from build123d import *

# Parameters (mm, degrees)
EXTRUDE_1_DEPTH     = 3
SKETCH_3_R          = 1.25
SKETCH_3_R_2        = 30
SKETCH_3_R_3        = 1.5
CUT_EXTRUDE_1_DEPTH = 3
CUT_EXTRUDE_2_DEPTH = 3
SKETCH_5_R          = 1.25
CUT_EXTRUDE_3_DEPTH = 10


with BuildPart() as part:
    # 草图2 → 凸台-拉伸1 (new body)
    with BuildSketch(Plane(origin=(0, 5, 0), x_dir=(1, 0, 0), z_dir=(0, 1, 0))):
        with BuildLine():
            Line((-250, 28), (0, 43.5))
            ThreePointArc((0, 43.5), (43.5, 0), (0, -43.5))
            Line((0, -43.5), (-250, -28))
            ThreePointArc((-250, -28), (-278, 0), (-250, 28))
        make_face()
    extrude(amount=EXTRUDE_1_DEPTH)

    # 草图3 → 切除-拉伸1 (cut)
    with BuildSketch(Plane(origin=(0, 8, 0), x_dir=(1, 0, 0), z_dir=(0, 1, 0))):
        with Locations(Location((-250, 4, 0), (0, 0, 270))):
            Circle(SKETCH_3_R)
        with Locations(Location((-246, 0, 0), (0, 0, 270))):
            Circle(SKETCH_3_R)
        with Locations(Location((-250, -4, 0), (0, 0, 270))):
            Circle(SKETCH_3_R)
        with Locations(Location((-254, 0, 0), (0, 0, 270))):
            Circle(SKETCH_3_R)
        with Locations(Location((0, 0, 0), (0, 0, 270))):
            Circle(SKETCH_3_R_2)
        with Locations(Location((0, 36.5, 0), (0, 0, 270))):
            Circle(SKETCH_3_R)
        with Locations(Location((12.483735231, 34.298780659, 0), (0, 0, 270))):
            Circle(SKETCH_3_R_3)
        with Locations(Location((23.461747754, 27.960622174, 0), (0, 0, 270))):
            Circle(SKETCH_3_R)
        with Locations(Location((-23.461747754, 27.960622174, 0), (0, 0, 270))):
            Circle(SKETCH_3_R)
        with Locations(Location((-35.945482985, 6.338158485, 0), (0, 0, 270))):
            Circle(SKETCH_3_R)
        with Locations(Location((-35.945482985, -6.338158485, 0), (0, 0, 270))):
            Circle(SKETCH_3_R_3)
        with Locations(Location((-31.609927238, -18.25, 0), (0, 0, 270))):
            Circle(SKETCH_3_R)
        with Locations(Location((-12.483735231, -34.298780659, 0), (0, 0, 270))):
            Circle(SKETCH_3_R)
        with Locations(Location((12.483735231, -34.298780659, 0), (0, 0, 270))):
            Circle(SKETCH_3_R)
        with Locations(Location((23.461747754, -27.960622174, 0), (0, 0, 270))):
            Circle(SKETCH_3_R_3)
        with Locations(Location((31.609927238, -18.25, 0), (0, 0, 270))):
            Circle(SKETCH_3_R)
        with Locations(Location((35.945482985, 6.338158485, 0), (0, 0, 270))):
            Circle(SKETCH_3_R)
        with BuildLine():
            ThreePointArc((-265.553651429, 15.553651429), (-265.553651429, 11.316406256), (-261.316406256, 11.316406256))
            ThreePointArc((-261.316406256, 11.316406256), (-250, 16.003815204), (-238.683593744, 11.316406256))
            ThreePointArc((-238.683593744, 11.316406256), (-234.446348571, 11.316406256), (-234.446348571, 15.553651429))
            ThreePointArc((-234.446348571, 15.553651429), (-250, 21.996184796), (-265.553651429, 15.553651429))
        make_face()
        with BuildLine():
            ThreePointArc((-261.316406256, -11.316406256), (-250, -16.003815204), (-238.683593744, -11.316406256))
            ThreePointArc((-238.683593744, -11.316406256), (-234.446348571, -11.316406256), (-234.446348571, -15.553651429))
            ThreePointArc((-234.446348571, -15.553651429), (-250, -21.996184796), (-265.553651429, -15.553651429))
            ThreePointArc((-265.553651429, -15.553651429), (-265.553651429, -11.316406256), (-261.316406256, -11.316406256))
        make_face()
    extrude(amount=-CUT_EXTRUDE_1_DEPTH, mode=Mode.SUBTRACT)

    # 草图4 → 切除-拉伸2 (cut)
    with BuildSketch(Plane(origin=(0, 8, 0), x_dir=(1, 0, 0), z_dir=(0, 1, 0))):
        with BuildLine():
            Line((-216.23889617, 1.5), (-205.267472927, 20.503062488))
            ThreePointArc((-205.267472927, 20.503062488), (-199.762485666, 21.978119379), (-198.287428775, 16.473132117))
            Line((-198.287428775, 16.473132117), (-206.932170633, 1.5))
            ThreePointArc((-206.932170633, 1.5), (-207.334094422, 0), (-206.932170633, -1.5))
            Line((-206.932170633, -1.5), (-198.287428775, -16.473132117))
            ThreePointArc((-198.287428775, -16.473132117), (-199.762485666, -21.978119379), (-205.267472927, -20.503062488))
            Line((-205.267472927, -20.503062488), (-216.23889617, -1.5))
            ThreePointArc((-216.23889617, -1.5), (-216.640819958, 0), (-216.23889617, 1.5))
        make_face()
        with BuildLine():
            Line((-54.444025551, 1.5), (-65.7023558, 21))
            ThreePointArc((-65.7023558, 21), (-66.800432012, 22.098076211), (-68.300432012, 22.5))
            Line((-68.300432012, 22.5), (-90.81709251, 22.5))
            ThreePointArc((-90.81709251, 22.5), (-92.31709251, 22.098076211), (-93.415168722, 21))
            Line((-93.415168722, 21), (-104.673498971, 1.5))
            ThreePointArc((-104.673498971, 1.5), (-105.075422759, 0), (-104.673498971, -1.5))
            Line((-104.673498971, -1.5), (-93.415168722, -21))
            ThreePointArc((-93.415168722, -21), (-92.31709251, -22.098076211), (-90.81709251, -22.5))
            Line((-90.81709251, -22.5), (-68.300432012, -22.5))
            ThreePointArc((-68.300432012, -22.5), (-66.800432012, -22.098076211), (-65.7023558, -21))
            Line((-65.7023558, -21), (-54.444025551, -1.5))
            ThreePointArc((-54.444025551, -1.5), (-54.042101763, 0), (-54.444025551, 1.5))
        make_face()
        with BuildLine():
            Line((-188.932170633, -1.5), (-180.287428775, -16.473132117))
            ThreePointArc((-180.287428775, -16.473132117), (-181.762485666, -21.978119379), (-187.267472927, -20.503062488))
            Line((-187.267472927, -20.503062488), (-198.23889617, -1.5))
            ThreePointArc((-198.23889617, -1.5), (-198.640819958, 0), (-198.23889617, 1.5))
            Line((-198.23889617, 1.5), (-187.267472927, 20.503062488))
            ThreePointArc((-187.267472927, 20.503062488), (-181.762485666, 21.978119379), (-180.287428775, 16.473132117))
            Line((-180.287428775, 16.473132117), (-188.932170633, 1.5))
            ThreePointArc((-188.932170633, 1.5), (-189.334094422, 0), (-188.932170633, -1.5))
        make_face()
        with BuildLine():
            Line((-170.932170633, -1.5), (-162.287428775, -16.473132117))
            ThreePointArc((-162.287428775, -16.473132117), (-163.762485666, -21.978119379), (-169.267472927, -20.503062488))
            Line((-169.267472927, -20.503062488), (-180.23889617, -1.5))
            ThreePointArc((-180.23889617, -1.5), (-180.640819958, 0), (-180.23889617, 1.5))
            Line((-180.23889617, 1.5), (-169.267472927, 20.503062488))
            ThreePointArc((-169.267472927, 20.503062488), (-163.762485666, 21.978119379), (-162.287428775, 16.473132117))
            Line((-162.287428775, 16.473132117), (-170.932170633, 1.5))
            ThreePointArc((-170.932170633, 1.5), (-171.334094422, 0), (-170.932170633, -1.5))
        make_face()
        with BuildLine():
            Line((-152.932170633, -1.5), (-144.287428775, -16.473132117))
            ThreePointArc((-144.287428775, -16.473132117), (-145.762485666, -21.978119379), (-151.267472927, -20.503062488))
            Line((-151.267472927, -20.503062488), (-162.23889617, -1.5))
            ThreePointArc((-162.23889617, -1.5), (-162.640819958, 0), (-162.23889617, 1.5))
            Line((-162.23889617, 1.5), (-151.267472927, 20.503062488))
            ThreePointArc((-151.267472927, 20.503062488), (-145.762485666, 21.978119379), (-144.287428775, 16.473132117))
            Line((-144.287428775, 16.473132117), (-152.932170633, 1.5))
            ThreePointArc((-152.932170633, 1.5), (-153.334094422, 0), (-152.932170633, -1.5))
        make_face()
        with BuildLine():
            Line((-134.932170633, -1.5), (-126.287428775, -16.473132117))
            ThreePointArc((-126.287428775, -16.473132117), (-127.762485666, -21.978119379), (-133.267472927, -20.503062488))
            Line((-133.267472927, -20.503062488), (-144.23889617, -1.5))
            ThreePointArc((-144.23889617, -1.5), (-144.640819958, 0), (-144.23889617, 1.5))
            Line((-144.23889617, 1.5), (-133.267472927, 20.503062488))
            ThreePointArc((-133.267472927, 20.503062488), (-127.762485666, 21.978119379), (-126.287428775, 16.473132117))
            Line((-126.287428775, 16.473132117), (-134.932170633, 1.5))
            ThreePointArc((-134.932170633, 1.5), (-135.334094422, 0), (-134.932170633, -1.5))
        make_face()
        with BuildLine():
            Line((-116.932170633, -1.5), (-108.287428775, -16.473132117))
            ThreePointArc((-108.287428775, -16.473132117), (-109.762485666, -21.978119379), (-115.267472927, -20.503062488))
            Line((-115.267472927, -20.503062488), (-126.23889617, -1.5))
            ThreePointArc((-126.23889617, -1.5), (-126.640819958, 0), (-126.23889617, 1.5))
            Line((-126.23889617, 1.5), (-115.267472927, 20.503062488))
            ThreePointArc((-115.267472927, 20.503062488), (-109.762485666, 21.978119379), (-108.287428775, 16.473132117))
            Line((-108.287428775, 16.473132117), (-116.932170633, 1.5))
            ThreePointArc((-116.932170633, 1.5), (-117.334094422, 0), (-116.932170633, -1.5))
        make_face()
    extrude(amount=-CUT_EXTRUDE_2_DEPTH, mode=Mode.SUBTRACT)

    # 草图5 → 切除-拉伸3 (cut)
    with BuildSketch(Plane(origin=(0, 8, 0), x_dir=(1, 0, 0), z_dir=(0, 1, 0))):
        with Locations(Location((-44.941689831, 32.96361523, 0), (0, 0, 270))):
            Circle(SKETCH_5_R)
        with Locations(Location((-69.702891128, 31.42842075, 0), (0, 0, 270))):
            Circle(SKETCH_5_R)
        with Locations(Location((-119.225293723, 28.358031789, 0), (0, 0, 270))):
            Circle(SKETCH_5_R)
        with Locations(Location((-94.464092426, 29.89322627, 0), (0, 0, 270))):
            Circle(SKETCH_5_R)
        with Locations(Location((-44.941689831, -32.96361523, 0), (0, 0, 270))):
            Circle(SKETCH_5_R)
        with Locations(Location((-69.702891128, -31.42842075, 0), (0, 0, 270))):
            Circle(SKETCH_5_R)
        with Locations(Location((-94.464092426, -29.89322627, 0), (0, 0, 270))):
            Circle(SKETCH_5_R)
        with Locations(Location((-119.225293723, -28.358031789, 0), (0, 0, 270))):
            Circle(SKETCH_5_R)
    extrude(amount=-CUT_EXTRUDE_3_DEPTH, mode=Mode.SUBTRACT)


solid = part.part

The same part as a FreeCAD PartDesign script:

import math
import FreeCAD as App
import Part
import Sketcher

V = App.Vector
Q = App.Units.Quantity

doc = App.newDocument("Part")
params = doc.addObject("Spreadsheet::Sheet", "Params")
for row, (alias, value) in enumerate([
    ("sketch1_radius", "28 mm"),
    ("sketch1_radius2", "43.5 mm"),
    ("pad1_length", "3 mm"),
    ("sketch2_diameter", "60 mm"),
    ("sketch2_diameter2", "3 mm"),
    ("sketch2_diameter3", "2.5 mm"),
    ("pocket1_length", "3 mm"),
    ("sketch3_radius", "3 mm"),
    ("pocket2_length", "3 mm"),
    ("sketch4_diameter", "2.5 mm"),
    ("pocket3_length", "10 mm"),
], start=1):
    params.set(f"A{row}", alias)
    params.set(f"B{row}", "=" + value)
    params.setAlias(f"B{row}", alias)

body = doc.addObject("PartDesign::Body", "Body")

sketch1 = body.newObject("Sketcher::SketchObject", "Sketch")
sketch1.AttachmentSupport = (doc.getObject("XZ_Plane"), [""])
sketch1.MapMode = "FlatFace"
sketch1.AttachmentOffset = App.Placement(V(0, 0, -5), App.Rotation())
sketch1.addGeometry([
    Part.LineSegment(V(0, -44, 0), V(-250, -28, 0)),
    Part.ArcOfCircle(Part.Circle(V(-250, 0, 0), V(0, 0, 1), 28), math.radians(90), math.radians(270)),
    Part.LineSegment(V(-250, 28, 0), V(0, 44, 0)),
    Part.ArcOfCircle(Part.Circle(V(0, 0, 0), V(0, 0, 1), 44), math.radians(-90), math.radians(90)),
], False)
sketch1.addConstraint([
    Sketcher.Constraint("Coincident", 0, 2, 1, 2),
    Sketcher.Constraint("Coincident", 1, 1, 2, 1),
    Sketcher.Constraint("Coincident", 2, 2, 3, 2),
    Sketcher.Constraint("Coincident", 3, 1, 0, 1),
    Sketcher.Constraint("Coincident", 3, 3, -1, 1),
    Sketcher.Constraint("Symmetric", 0, 2, 1, 1, -1),
    Sketcher.Constraint("PointOnObject", 2, 2, -2),
    Sketcher.Constraint("PointOnObject", 3, 1, -2),
    Sketcher.Constraint("Vertical", 1, 3, 0, 2),
    Sketcher.Constraint("Radius", 1, 28.0),
    Sketcher.Constraint("Radius", 3, 43.5),
    Sketcher.Constraint("DistanceX", 1, 3, -1, 1, 250.0),
])
sketch1.setExpression("Constraints[9]", "Params.sketch1_radius")
sketch1.setExpression("Constraints[10]", "Params.sketch1_radius2")
pad1 = body.newObject("PartDesign::Pad", "Pad")
pad1.Profile = sketch1
pad1.setExpression("Length", "Params.pad1_length")
pad1.Reversed = True

sketch2 = body.newObject("Sketcher::SketchObject", "Sketch001")
sketch2.AttachmentSupport = (doc.getObject("XZ_Plane"), [""])
sketch2.MapMode = "FlatFace"
sketch2.AttachmentOffset = App.Placement(V(0, 0, -8), App.Rotation())
sketch2.addGeometry([
    Part.Circle(V(-250, -4, 0), V(0, 0, 1), 1.2),
    Part.Circle(V(-246, 0, 0), V(0, 0, 1), 1.2),
    Part.Circle(V(-250, 4, 0), V(0, 0, 1), 1.2),
    Part.Circle(V(-254, 0, 0), V(0, 0, 1), 1.2),
    Part.Circle(V(0, 0, 0), V(0, 0, 1), 30),
    Part.Circle(V(0, -36.5, 0), V(0, 0, 1), 1.2),
    Part.Circle(V(12.5, -34.3, 0), V(0, 0, 1), 1.5),
    Part.Circle(V(23.5, -28, 0), V(0, 0, 1), 1.2),
    Part.Circle(V(-23.5, -28, 0), V(0, 0, 1), 1.2),
    Part.Circle(V(-35.9, -6.3, 0), V(0, 0, 1), 1.2),
    Part.Circle(V(-35.9, 6.3, 0), V(0, 0, 1), 1.5),
    Part.Circle(V(-31.6, 18.2, 0), V(0, 0, 1), 1.2),
    Part.Circle(V(-12.5, 34.3, 0), V(0, 0, 1), 1.2),
    Part.Circle(V(12.5, 34.3, 0), V(0, 0, 1), 1.2),
    Part.Circle(V(23.5, 28, 0), V(0, 0, 1), 1.5),
    Part.Circle(V(31.6, 18.2, 0), V(0, 0, 1), 1.2),
    Part.Circle(V(35.9, -6.3, 0), V(0, 0, 1), 1.2),
    Part.ArcOfCircle(Part.Circle(V(-263.4, -13.4, 0), V(0, 0, 1), 3), math.radians(45), math.radians(225)),
    Part.ArcOfCircle(Part.Circle(V(-250, 0, 0), V(0, 0, 1), 16), math.radians(-135), math.radians(-45)),
    Part.ArcOfCircle(Part.Circle(V(-236.6, -13.4, 0), V(0, 0, 1), 3), math.radians(-45), math.radians(135)),
    Part.ArcOfCircle(Part.Circle(V(-250, 0, 0), V(0, 0, 1), 22), math.radians(-135), math.radians(-45)),
    Part.ArcOfCircle(Part.Circle(V(-250, 0, 0), V(0, 0, 1), 16), math.radians(45), math.radians(135)),
    Part.ArcOfCircle(Part.Circle(V(-263.4, 13.4, 0), V(0, 0, 1), 3), math.radians(135), math.radians(315)),
    Part.ArcOfCircle(Part.Circle(V(-250, 0, 0), V(0, 0, 1), 22), math.radians(45), math.radians(135)),
    Part.ArcOfCircle(Part.Circle(V(-236.6, 13.4, 0), V(0, 0, 1), 3), math.radians(-135), math.radians(45)),
], False)
sketch2.addConstraint([
    Sketcher.Constraint("Tangent", 17, 1, 18, 1),
    Sketcher.Constraint("Tangent", 18, 2, 19, 2),
    Sketcher.Constraint("Tangent", 19, 1, 20, 2),
    Sketcher.Constraint("Tangent", 20, 1, 17, 2),
    Sketcher.Constraint("Tangent", 21, 2, 22, 2),
    Sketcher.Constraint("Tangent", 22, 1, 23, 2),
    Sketcher.Constraint("Tangent", 23, 1, 24, 2),
    Sketcher.Constraint("Tangent", 24, 1, 21, 1),
    Sketcher.Constraint("Coincident", 4, 3, -1, 1),
    Sketcher.Constraint("Coincident", 20, 3, 18, 3),
    Sketcher.Constraint("Coincident", 21, 3, 18, 3),
    Sketcher.Constraint("Coincident", 23, 3, 18, 3),
    Sketcher.Constraint("Equal", 0, 1),
    Sketcher.Constraint("Equal", 1, 2),
    Sketcher.Constraint("Equal", 2, 3),
    Sketcher.Constraint("Equal", 3, 5),
    Sketcher.Constraint("Equal", 5, 7),
    Sketcher.Constraint("Equal", 7, 8),
    Sketcher.Constraint("Equal", 8, 9),
    Sketcher.Constraint("Equal", 6, 10),
    Sketcher.Constraint("Equal", 9, 11),
    Sketcher.Constraint("Equal", 11, 12),
    Sketcher.Constraint("Equal", 12, 13),
    Sketcher.Constraint("Equal", 10, 14),
    Sketcher.Constraint("Equal", 13, 15),
    Sketcher.Constraint("Equal", 15, 16),
    Sketcher.Constraint("Equal", 18, 21),
    Sketcher.Constraint("Equal", 19, 22),
    Sketcher.Constraint("Symmetric", 6, 3, 12, 3, -1, 1),
    Sketcher.Constraint("Symmetric", 8, 3, 14, 3, -1, 1),
    Sketcher.Constraint("Symmetric", 10, 3, 16, 3, -1, 1),
    Sketcher.Constraint("Symmetric", 7, 3, 8, 3, -2),
    Sketcher.Constraint("Symmetric", 12, 3, 13, 3, -2),
    Sketcher.Constraint("Symmetric", 11, 3, 15, 3, -2),
    Sketcher.Constraint("Symmetric", 9, 3, 16, 3, -2),
    Sketcher.Constraint("Symmetric", 0, 3, 2, 3, -1),
    Sketcher.Constraint("Symmetric", 17, 3, 22, 3, -1),
    Sketcher.Constraint("PointOnObject", 1, 3, -1),
    Sketcher.Constraint("PointOnObject", 3, 3, -1),
    Sketcher.Constraint("PointOnObject", 5, 3, -2),
    Sketcher.Constraint("Horizontal", 17, 3, 19, 3),
    Sketcher.Constraint("Horizontal", 22, 3, 24, 3),
    Sketcher.Constraint("Vertical", 2, 3, 18, 3),
    Sketcher.Constraint("Diameter", 4, 60.0),
    Sketcher.Constraint("Diameter", 6, 3.0),
    Sketcher.Constraint("Diameter", 0, 2.5),
    Sketcher.Constraint("DistanceX", 0, 3, -1, 1, 250.0),
    Sketcher.Constraint("DistanceY", 0, 3, -1, 1, 4.0),
    Sketcher.Constraint("DistanceX", 1, 3, -1, 1, 246.0),
    Sketcher.Constraint("DistanceX", 3, 3, -1, 1, 254.0),
    Sketcher.Constraint("DistanceY", 5, 3, -1, 1, 36.5),
    Sketcher.Constraint("DistanceY", -1, 1, 11, 3, 18.25),
    Sketcher.Constraint("Radius", 17, 2.996185),
    Sketcher.Constraint("Radius", 18, 16.003815),
    Sketcher.Constraint("DistanceY", 6, 3, -1, 1, 34.298781),
    Sketcher.Constraint("DistanceY", 9, 3, -1, 1, 6.338158),
    Sketcher.Constraint("DistanceX", 17, 3, -1, 1, 263.435029),
    Sketcher.Constraint("DistanceY", 6, 3, 7, 3, 6.338158),
    Sketcher.Constraint("DistanceX", 9, 3, 6, 3, 48.429218),
    Sketcher.Constraint("DistanceX", 9, 3, 7, 3, 59.407231),
    Sketcher.Constraint("DistanceX", 11, 3, 8, 3, 8.148179),
    Sketcher.Constraint("DistanceX", 12, 3, 13, 3, 24.96747),
])
sketch2.setExpression("Constraints[43]", "Params.sketch2_diameter")
sketch2.setExpression("Constraints[44]", "Params.sketch2_diameter2")
sketch2.setExpression("Constraints[45]", "Params.sketch2_diameter3")
pocket1 = body.newObject("PartDesign::Pocket", "Pocket")
pocket1.Profile = sketch2
pocket1.setExpression("Length", "Params.pocket1_length")
pocket1.Reversed = True

sketch3 = body.newObject("Sketcher::SketchObject", "Sketch002")
sketch3.AttachmentSupport = (doc.getObject("XZ_Plane"), [""])
sketch3.MapMode = "FlatFace"
sketch3.AttachmentOffset = App.Placement(V(0, 0, -8), App.Rotation())
sketch3.addGeometry([
    Part.LineSegment(V(-205.3, -20.5, 0), V(-216.2, -1.5, 0)),
    Part.ArcOfCircle(Part.Circle(V(-213.6, 0, 0), V(0, 0, 1), 3), math.radians(150), math.radians(210)),
    Part.LineSegment(V(-216.2, 1.5, 0), V(-205.3, 20.5, 0)),
    Part.ArcOfCircle(Part.Circle(V(-201.8, 18.5, 0), V(0, 0, 1), 4), math.radians(-30), math.radians(150)),
    Part.LineSegment(V(-198.3, 16.5, 0), V(-206.9, 1.5, 0)),
    Part.ArcOfCircle(Part.Circle(V(-204.3, 0, 0), V(0, 0, 1), 3), math.radians(150), math.radians(210)),
    Part.LineSegment(V(-206.9, -1.5, 0), V(-198.3, -16.5, 0)),
    Part.ArcOfCircle(Part.Circle(V(-201.8, -18.5, 0), V(0, 0, 1), 4), math.radians(-150), math.radians(30)),
    Part.LineSegment(V(-54.4, -1.5, 0), V(-65.7, -21, 0)),
    Part.ArcOfCircle(Part.Circle(V(-68.3, -19.5, 0), V(0, 0, 1), 3), math.radians(-90), math.radians(-30)),
    Part.LineSegment(V(-68.3, -22.5, 0), V(-90.8, -22.5, 0)),
    Part.ArcOfCircle(Part.Circle(V(-90.8, -19.5, 0), V(0, 0, 1), 3), math.radians(-150), math.radians(-90)),
    Part.LineSegment(V(-93.4, -21, 0), V(-104.7, -1.5, 0)),
    Part.ArcOfCircle(Part.Circle(V(-102.1, 0, 0), V(0, 0, 1), 3), math.radians(150), math.radians(210)),
    Part.LineSegment(V(-104.7, 1.5, 0), V(-93.4, 21, 0)),
    Part.ArcOfCircle(Part.Circle(V(-90.8, 19.5, 0), V(0, 0, 1), 3), math.radians(90), math.radians(150)),
    Part.LineSegment(V(-90.8, 22.5, 0), V(-68.3, 22.5, 0)),
    Part.ArcOfCircle(Part.Circle(V(-68.3, 19.5, 0), V(0, 0, 1), 3), math.radians(30), math.radians(90)),
    Part.LineSegment(V(-65.7, 21, 0), V(-54.4, 1.5, 0)),
    Part.ArcOfCircle(Part.Circle(V(-57, 0, 0), V(0, 0, 1), 3), math.radians(-30), math.radians(30)),
    Part.LineSegment(V(-180.3, 16.5, 0), V(-188.9, 1.5, 0)),
    Part.ArcOfCircle(Part.Circle(V(-186.3, 0, 0), V(0, 0, 1), 3), math.radians(150), math.radians(210)),
    Part.LineSegment(V(-188.9, -1.5, 0), V(-180.3, -16.5, 0)),
    Part.ArcOfCircle(Part.Circle(V(-183.8, -18.5, 0), V(0, 0, 1), 4), math.radians(-150), math.radians(30)),
    Part.LineSegment(V(-187.3, -20.5, 0), V(-198.2, -1.5, 0)),
    Part.ArcOfCircle(Part.Circle(V(-195.6, 0, 0), V(0, 0, 1), 3), math.radians(150), math.radians(210)),
    Part.LineSegment(V(-198.2, 1.5, 0), V(-187.3, 20.5, 0)),
    Part.ArcOfCircle(Part.Circle(V(-183.8, 18.5, 0), V(0, 0, 1), 4), math.radians(-30), math.radians(150)),
    Part.LineSegment(V(-162.3, 16.5, 0), V(-170.9, 1.5, 0)),
    Part.ArcOfCircle(Part.Circle(V(-168.3, 0, 0), V(0, 0, 1), 3), math.radians(150), math.radians(210)),
    Part.LineSegment(V(-170.9, -1.5, 0), V(-162.3, -16.5, 0)),
    Part.ArcOfCircle(Part.Circle(V(-165.8, -18.5, 0), V(0, 0, 1), 4), math.radians(-150), math.radians(30)),
    Part.LineSegment(V(-169.3, -20.5, 0), V(-180.2, -1.5, 0)),
    Part.ArcOfCircle(Part.Circle(V(-177.6, 0, 0), V(0, 0, 1), 3), math.radians(150), math.radians(210)),
    Part.LineSegment(V(-180.2, 1.5, 0), V(-169.3, 20.5, 0)),
    Part.ArcOfCircle(Part.Circle(V(-165.8, 18.5, 0), V(0, 0, 1), 4), math.radians(-30), math.radians(150)),
    Part.LineSegment(V(-144.3, 16.5, 0), V(-152.9, 1.5, 0)),
    Part.ArcOfCircle(Part.Circle(V(-150.3, 0, 0), V(0, 0, 1), 3), math.radians(150), math.radians(210)),
    Part.LineSegment(V(-152.9, -1.5, 0), V(-144.3, -16.5, 0)),
    Part.ArcOfCircle(Part.Circle(V(-147.8, -18.5, 0), V(0, 0, 1), 4), math.radians(-150), math.radians(30)),
    Part.LineSegment(V(-151.3, -20.5, 0), V(-162.2, -1.5, 0)),
    Part.ArcOfCircle(Part.Circle(V(-159.6, 0, 0), V(0, 0, 1), 3), math.radians(150), math.radians(210)),
    Part.LineSegment(V(-162.2, 1.5, 0), V(-151.3, 20.5, 0)),
    Part.ArcOfCircle(Part.Circle(V(-147.8, 18.5, 0), V(0, 0, 1), 4), math.radians(-30), math.radians(150)),
    Part.LineSegment(V(-126.3, 16.5, 0), V(-134.9, 1.5, 0)),
    Part.ArcOfCircle(Part.Circle(V(-132.3, 0, 0), V(0, 0, 1), 3), math.radians(150), math.radians(210)),
    Part.LineSegment(V(-134.9, -1.5, 0), V(-126.3, -16.5, 0)),
    Part.ArcOfCircle(Part.Circle(V(-129.8, -18.5, 0), V(0, 0, 1), 4), math.radians(-150), math.radians(30)),
    Part.LineSegment(V(-133.3, -20.5, 0), V(-144.2, -1.5, 0)),
    Part.ArcOfCircle(Part.Circle(V(-141.6, 0, 0), V(0, 0, 1), 3), math.radians(150), math.radians(210)),
    Part.LineSegment(V(-144.2, 1.5, 0), V(-133.3, 20.5, 0)),
    Part.ArcOfCircle(Part.Circle(V(-129.8, 18.5, 0), V(0, 0, 1), 4), math.radians(-30), math.radians(150)),
    Part.LineSegment(V(-108.3, 16.5, 0), V(-116.9, 1.5, 0)),
    Part.ArcOfCircle(Part.Circle(V(-114.3, 0, 0), V(0, 0, 1), 3), math.radians(150), math.radians(210)),
    Part.LineSegment(V(-116.9, -1.5, 0), V(-108.3, -16.5, 0)),
    Part.ArcOfCircle(Part.Circle(V(-111.8, -18.5, 0), V(0, 0, 1), 4), math.radians(-150), math.radians(30)),
    Part.LineSegment(V(-115.3, -20.5, 0), V(-126.2, -1.5, 0)),
    Part.ArcOfCircle(Part.Circle(V(-123.6, 0, 0), V(0, 0, 1), 3), math.radians(150), math.radians(210)),
    Part.LineSegment(V(-126.2, 1.5, 0), V(-115.3, 20.5, 0)),
    Part.ArcOfCircle(Part.Circle(V(-111.8, 18.5, 0), V(0, 0, 1), 4), math.radians(-30), math.radians(150)),
], False)
sketch3.addConstraint([
    Sketcher.Constraint("Tangent", 0, 2, 1, 2),
    Sketcher.Constraint("Tangent", 1, 1, 2, 1),
    Sketcher.Constraint("Tangent", 2, 2, 3, 2),
    Sketcher.Constraint("Tangent", 3, 1, 4, 1),
    Sketcher.Constraint("Tangent", 4, 2, 5, 1),
    Sketcher.Constraint("Tangent", 5, 2, 6, 1),
    Sketcher.Constraint("Tangent", 6, 2, 7, 2),
    Sketcher.Constraint("Tangent", 7, 1, 0, 1),
    Sketcher.Constraint("Tangent", 8, 2, 9, 2),
    Sketcher.Constraint("Tangent", 9, 1, 10, 1),
    Sketcher.Constraint("Tangent", 10, 2, 11, 2),
    Sketcher.Constraint("Tangent", 11, 1, 12, 1),
    Sketcher.Constraint("Tangent", 12, 2, 13, 2),
    Sketcher.Constraint("Tangent", 13, 1, 14, 1),
    Sketcher.Constraint("Tangent", 14, 2, 15, 2),
    Sketcher.Constraint("Tangent", 15, 1, 16, 1),
    Sketcher.Constraint("Tangent", 16, 2, 17, 2),
    Sketcher.Constraint("Tangent", 17, 1, 18, 1),
    Sketcher.Constraint("Tangent", 18, 2, 19, 2),
    Sketcher.Constraint("Tangent", 19, 1, 8, 1),
    Sketcher.Constraint("Tangent", 20, 2, 21, 1),
    Sketcher.Constraint("Tangent", 21, 2, 22, 1),
    Sketcher.Constraint("Tangent", 22, 2, 23, 2),
    Sketcher.Constraint("Tangent", 23, 1, 24, 1),
    Sketcher.Constraint("Tangent", 24, 2, 25, 2),
    Sketcher.Constraint("Tangent", 25, 1, 26, 1),
    Sketcher.Constraint("Tangent", 26, 2, 27, 2),
    Sketcher.Constraint("Tangent", 27, 1, 20, 1),
    Sketcher.Constraint("Tangent", 28, 2, 29, 1),
    Sketcher.Constraint("Tangent", 29, 2, 30, 1),
    Sketcher.Constraint("Tangent", 30, 2, 31, 2),
    Sketcher.Constraint("Tangent", 31, 1, 32, 1),
    Sketcher.Constraint("Tangent", 32, 2, 33, 2),
    Sketcher.Constraint("Tangent", 33, 1, 34, 1),
    Sketcher.Constraint("Tangent", 34, 2, 35, 2),
    Sketcher.Constraint("Tangent", 35, 1, 28, 1),
    Sketcher.Constraint("Tangent", 36, 2, 37, 1),
    Sketcher.Constraint("Tangent", 37, 2, 38, 1),
    Sketcher.Constraint("Tangent", 38, 2, 39, 2),
    Sketcher.Constraint("Tangent", 39, 1, 40, 1),
    Sketcher.Constraint("Tangent", 40, 2, 41, 2),
    Sketcher.Constraint("Tangent", 41, 1, 42, 1),
    Sketcher.Constraint("Tangent", 42, 2, 43, 2),
    Sketcher.Constraint("Tangent", 43, 1, 36, 1),
    Sketcher.Constraint("Tangent", 44, 2, 45, 1),
    Sketcher.Constraint("Tangent", 45, 2, 46, 1),
    Sketcher.Constraint("Tangent", 46, 2, 47, 2),
    Sketcher.Constraint("Tangent", 47, 1, 48, 1),
    Sketcher.Constraint("Tangent", 48, 2, 49, 2),
    Sketcher.Constraint("Tangent", 49, 1, 50, 1),
    Sketcher.Constraint("Tangent", 50, 2, 51, 2),
    Sketcher.Constraint("Tangent", 51, 1, 44, 1),
    Sketcher.Constraint("Tangent", 52, 2, 53, 1),
    Sketcher.Constraint("Tangent", 53, 2, 54, 1),
    Sketcher.Constraint("Tangent", 54, 2, 55, 2),
    Sketcher.Constraint("Tangent", 55, 1, 56, 1),
    Sketcher.Constraint("Tangent", 56, 2, 57, 2),
    Sketcher.Constraint("Tangent", 57, 1, 58, 1),
    Sketcher.Constraint("Tangent", 58, 2, 59, 2),
    Sketcher.Constraint("Tangent", 59, 1, 52, 1),
    Sketcher.Constraint("Horizontal", 10),
    Sketcher.Constraint("Horizontal", 16),
    Sketcher.Constraint("Equal", 1, 5),
    Sketcher.Constraint("Equal", 3, 7),
    Sketcher.Constraint("Equal", 5, 9),
    Sketcher.Constraint("Equal", 9, 11),
    Sketcher.Constraint("Equal", 11, 13),
    Sketcher.Constraint("Equal", 13, 15),
    Sketcher.Constraint("Equal", 15, 17),
    Sketcher.Constraint("Equal", 17, 19),
    Sketcher.Constraint("Equal", 19, 21),
    Sketcher.Constraint("Equal", 7, 23),
    Sketcher.Constraint("Equal", 21, 25),
    Sketcher.Constraint("Equal", 23, 27),
    Sketcher.Constraint("Equal", 25, 29),
    Sketcher.Constraint("Equal", 27, 31),
    Sketcher.Constraint("Equal", 29, 33),
    Sketcher.Constraint("Equal", 31, 35),
    Sketcher.Constraint("Equal", 33, 37),
    Sketcher.Constraint("Equal", 35, 39),
    Sketcher.Constraint("Equal", 37, 41),
    Sketcher.Constraint("Equal", 39, 43),
    Sketcher.Constraint("Equal", 41, 45),
    Sketcher.Constraint("Equal", 43, 47),
    Sketcher.Constraint("Equal", 45, 49),
    Sketcher.Constraint("Equal", 47, 51),
    Sketcher.Constraint("Equal", 49, 53),
    Sketcher.Constraint("Equal", 51, 55),
    Sketcher.Constraint("Equal", 53, 57),
    Sketcher.Constraint("Equal", 55, 59),
    Sketcher.Constraint("Symmetric", 3, 3, 7, 3, -1),
    Sketcher.Constraint("Symmetric", 11, 3, 15, 3, -1),
    Sketcher.Constraint("Symmetric", 23, 3, 27, 3, -1),
    Sketcher.Constraint("Symmetric", 31, 3, 35, 3, -1),
    Sketcher.Constraint("Symmetric", 39, 3, 43, 3, -1),
    Sketcher.Constraint("Symmetric", 47, 3, 51, 3, -1),
    Sketcher.Constraint("Symmetric", 55, 3, 59, 3, -1),
    Sketcher.Constraint("Symmetric", 8, 2, 17, 1, -1),
    Sketcher.Constraint("PointOnObject", 1, 3, -1),
    Sketcher.Constraint("PointOnObject", 5, 3, -1),
    Sketcher.Constraint("PointOnObject", 13, 3, -1),
    Sketcher.Constraint("PointOnObject", 21, 3, -1),
    Sketcher.Constraint("PointOnObject", 25, 3, -1),
    Sketcher.Constraint("PointOnObject", 29, 3, -1),
    Sketcher.Constraint("PointOnObject", 33, 3, -1),
    Sketcher.Constraint("PointOnObject", 37, 3, -1),
    Sketcher.Constraint("PointOnObject", 41, 3, -1),
    Sketcher.Constraint("PointOnObject", 45, 3, -1),
    Sketcher.Constraint("PointOnObject", 49, 3, -1),
    Sketcher.Constraint("PointOnObject", 53, 3, -1),
    Sketcher.Constraint("PointOnObject", 57, 3, -1),
    Sketcher.Constraint("Parallel", 2, 4),
    Sketcher.Constraint("Parallel", 4, 8),
    Sketcher.Constraint("Parallel", 6, 12),
    Sketcher.Constraint("Parallel", 14, 20),
    Sketcher.Constraint("Parallel", 22, 24),
    Sketcher.Constraint("Parallel", 26, 28),
    Sketcher.Constraint("Parallel", 30, 32),
    Sketcher.Constraint("Parallel", 34, 36),
    Sketcher.Constraint("Parallel", 38, 40),
    Sketcher.Constraint("Parallel", 42, 44),
    Sketcher.Constraint("Parallel", 46, 48),
    Sketcher.Constraint("Parallel", 50, 52),
    Sketcher.Constraint("Parallel", 54, 56),
    Sketcher.Constraint("Horizontal", 7, 3, 23, 3),
    Sketcher.Constraint("Horizontal", 23, 3, 31, 3),
    Sketcher.Constraint("Horizontal", 31, 3, 39, 3),
    Sketcher.Constraint("Horizontal", 39, 3, 47, 3),
    Sketcher.Constraint("Horizontal", 47, 3, 55, 3),
    Sketcher.Constraint("Radius", 1, 3.0),
    Sketcher.Constraint("Angle", 0, Q("120 deg")),
    Sketcher.Constraint("DistanceY", 8, 2, -1, 1, 21.0),
    Sketcher.Constraint("Radius", 3, 4.02993),
    Sketcher.Constraint("DistanceX", 10, 2, 10, 1, 22.51666),
    Sketcher.Constraint("DistanceX", 19, 3, -1, 1, 57.042102),
    Sketcher.Constraint("DistanceX", 1, 3, -1, 1, 213.64082),
    Sketcher.Constraint("DistanceX", 3, 3, -1, 1, 201.777451),
    Sketcher.Constraint("DistanceX", 23, 3, -1, 1, 183.777451),
    Sketcher.Constraint("DistanceX", 31, 3, -1, 1, 165.777451),
    Sketcher.Constraint("DistanceX", 39, 3, -1, 1, 147.777451),
    Sketcher.Constraint("DistanceX", 47, 3, -1, 1, 129.777451),
    Sketcher.Constraint("DistanceX", 55, 3, -1, 1, 111.777451),
])
sketch3.setExpression("Constraints[129]", "Params.sketch3_radius")
pocket2 = body.newObject("PartDesign::Pocket", "Pocket001")
pocket2.Profile = sketch3
pocket2.setExpression("Length", "Params.pocket2_length")
pocket2.Reversed = True

sketch4 = body.newObject("Sketcher::SketchObject", "Sketch003")
sketch4.AttachmentSupport = (doc.getObject("XZ_Plane"), [""])
sketch4.MapMode = "FlatFace"
sketch4.AttachmentOffset = App.Placement(V(0, 0, -8), App.Rotation())
sketch4.addGeometry([
    Part.Circle(V(-44.9, -33, 0), V(0, 0, 1), 1.2),
    Part.Circle(V(-69.7, -31.4, 0), V(0, 0, 1), 1.2),
    Part.Circle(V(-119.2, -28.4, 0), V(0, 0, 1), 1.2),
    Part.Circle(V(-94.5, -29.9, 0), V(0, 0, 1), 1.2),
    Part.Circle(V(-44.9, 33, 0), V(0, 0, 1), 1.2),
    Part.Circle(V(-69.7, 31.4, 0), V(0, 0, 1), 1.2),
    Part.Circle(V(-94.5, 29.9, 0), V(0, 0, 1), 1.2),
    Part.Circle(V(-119.2, 28.4, 0), V(0, 0, 1), 1.2),
], False)
sketch4.addConstraint([
    Sketcher.Constraint("Equal", 0, 1),
    Sketcher.Constraint("Equal", 1, 2),
    Sketcher.Constraint("Equal", 2, 3),
    Sketcher.Constraint("Equal", 3, 4),
    Sketcher.Constraint("Equal", 4, 5),
    Sketcher.Constraint("Equal", 5, 6),
    Sketcher.Constraint("Equal", 6, 7),
    Sketcher.Constraint("Symmetric", 0, 3, 4, 3, -1),
    Sketcher.Constraint("Symmetric", 1, 3, 5, 3, -1),
    Sketcher.Constraint("Symmetric", 3, 3, 6, 3, -1),
    Sketcher.Constraint("Symmetric", 2, 3, 7, 3, -1),
    Sketcher.Constraint("Diameter", 0, 2.5),
    Sketcher.Constraint("DistanceX", 1, 3, 0, 3, 24.761201),
    Sketcher.Constraint("DistanceX", 2, 3, 3, 3, 24.761201),
    Sketcher.Constraint("DistanceX", 3, 3, 1, 3, 24.761201),
    Sketcher.Constraint("DistanceX", 0, 3, -1, 1, 44.94169),
    Sketcher.Constraint("DistanceY", 1, 3, -1, 1, 31.428421),
    Sketcher.Constraint("DistanceY", 2, 3, -1, 1, 28.358032),
    Sketcher.Constraint("DistanceY", 0, 3, 3, 3, 3.070389),
    Sketcher.Constraint("DistanceY", 0, 3, 4, 3, 65.92723),
])
sketch4.setExpression("Constraints[11]", "Params.sketch4_diameter")
pocket3 = body.newObject("PartDesign::Pocket", "Pocket002")
pocket3.Profile = sketch4
pocket3.setExpression("Length", "Params.pocket3_length")
pocket3.Reversed = True

doc.recompute()
